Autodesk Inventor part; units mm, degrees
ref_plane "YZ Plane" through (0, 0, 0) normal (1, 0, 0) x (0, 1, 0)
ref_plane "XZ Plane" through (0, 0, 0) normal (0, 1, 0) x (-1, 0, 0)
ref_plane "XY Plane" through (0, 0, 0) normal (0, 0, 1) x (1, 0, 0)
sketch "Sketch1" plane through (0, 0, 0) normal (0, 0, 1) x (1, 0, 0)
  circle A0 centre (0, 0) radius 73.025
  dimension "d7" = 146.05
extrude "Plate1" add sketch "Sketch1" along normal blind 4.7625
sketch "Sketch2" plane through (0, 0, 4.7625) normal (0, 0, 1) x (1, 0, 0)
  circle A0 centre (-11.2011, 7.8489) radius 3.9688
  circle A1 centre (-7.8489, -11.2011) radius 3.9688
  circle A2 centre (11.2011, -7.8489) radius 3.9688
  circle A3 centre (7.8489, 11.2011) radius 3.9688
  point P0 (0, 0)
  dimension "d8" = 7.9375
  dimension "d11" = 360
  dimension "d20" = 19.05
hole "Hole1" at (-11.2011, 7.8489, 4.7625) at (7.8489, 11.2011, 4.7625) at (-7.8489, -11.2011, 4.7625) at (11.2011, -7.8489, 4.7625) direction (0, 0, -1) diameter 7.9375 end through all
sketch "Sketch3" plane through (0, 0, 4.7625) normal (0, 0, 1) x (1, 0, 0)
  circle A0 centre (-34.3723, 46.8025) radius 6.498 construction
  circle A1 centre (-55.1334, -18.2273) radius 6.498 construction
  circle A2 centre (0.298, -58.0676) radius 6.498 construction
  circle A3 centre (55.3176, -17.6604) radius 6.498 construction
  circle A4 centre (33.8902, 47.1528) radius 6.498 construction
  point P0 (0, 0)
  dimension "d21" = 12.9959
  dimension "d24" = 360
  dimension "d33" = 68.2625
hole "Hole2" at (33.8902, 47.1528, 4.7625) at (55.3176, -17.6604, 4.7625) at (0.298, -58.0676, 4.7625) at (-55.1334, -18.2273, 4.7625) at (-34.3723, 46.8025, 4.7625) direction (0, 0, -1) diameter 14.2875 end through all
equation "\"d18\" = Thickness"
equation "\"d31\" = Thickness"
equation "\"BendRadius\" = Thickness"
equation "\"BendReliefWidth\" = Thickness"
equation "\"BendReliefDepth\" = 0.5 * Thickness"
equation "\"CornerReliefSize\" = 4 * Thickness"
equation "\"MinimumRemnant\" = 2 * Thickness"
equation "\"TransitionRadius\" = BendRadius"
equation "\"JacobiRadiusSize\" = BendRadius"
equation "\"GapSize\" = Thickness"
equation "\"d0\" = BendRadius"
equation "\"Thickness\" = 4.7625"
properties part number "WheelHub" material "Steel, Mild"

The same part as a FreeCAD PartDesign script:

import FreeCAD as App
import Part
import Sketcher

V = App.Vector
Q = App.Units.Quantity

doc = App.newDocument("Part")
params = doc.addObject("Spreadsheet::Sheet", "Params")
for row, (alias, value) in enumerate([
    ("sketch1_diameter", "5.75 in"),
    ("pad1_length", "0.1875 in"),
    ("sketch2_diameter", "0.3125 in"),
    ("hole_diameter", "0.3125 in"),
    ("sketch3_diameter", "0.5625 in"),
    ("hole2_diameter", "0.5625 in"),
], start=1):
    params.set(f"A{row}", alias)
    params.set(f"B{row}", "=" + value)
    params.setAlias(f"B{row}", alias)

body = doc.addObject("PartDesign::Body", "Body")

# Sketch on XY plane
sketch1 = body.newObject("Sketcher::SketchObject", "Sketch")
sketch1.AttachmentSupport = (doc.getObject("XY_Plane"), [""])
sketch1.MapMode = "FlatFace"
sketch1.addGeometry(Part.Circle(V(0, 0, 0), V(0, 0, 1), 73), False)
sketch1.addConstraint([
    Sketcher.Constraint("Coincident", 0, 3, -1, 1),
    Sketcher.Constraint("Diameter", 0, Q("5.75 in")),
])
sketch1.setExpression("Constraints[1]", "Params.sketch1_diameter")
pad1 = body.newObject("PartDesign::Pad", "Pad")
pad1.Profile = sketch1
pad1.setExpression("Length", "Params.pad1_length")

# Sketch on XY plane
sketch2 = body.newObject("Sketcher::SketchObject", "Sketch001")
sketch2.AttachmentSupport = (doc.getObject("XY_Plane"), [""])
sketch2.MapMode = "FlatFace"
sketch2.AttachmentOffset = App.Placement(V(0, 0, 0.1875 * 25.4), App.Rotation())
sketch2.addGeometry([
    Part.Circle(V(-11.2, 7.8, 0), V(0, 0, 1), 4),
    Part.Circle(V(7.8, 11.2, 0), V(0, 0, 1), 4),
    Part.Circle(V(-7.8, -11.2, 0), V(0, 0, 1), 4),
    Part.Circle(V(11.2, -7.8, 0), V(0, 0, 1), 4),
], False)
sketch2.addConstraint([
    Sketcher.Constraint("Equal", 0, 1),
    Sketcher.Constraint("Equal", 1, 2),
    Sketcher.Constraint("Equal", 2, 3),
    Sketcher.Constraint("Symmetric", 1, 3, 2, 3, -1, 1),
    Sketcher.Constraint("Symmetric", 0, 3, 3, 3, -1, 1),
    Sketcher.Constraint("Diameter", 0, Q("0.3125 in")),
    Sketcher.Constraint("DistanceX", 0, 3, 1, 3, Q("0.75 in")),
    Sketcher.Constraint("DistanceY", 2, 3, 0, 3, Q("0.75 in")),
    Sketcher.Constraint("DistanceX", 0, 3, -1, 1, Q("0.441 in")),
    Sketcher.Constraint("DistanceY", -1, 1, 0, 3, Q("0.309 in")),
])
sketch2.setExpression("Constraints[5]", "Params.sketch2_diameter")
doc.recompute()
hole = body.newObject("PartDesign::Hole", "Hole")
hole.Profile = sketch2
hole.ThreadType = "None"
hole.setExpression("Diameter", "Params.hole_diameter")
hole.DepthType = "ThroughAll"

# Sketch on XY plane
sketch3 = body.newObject("Sketcher::SketchObject", "Sketch002")
sketch3.AttachmentSupport = (doc.getObject("XY_Plane"), [""])
sketch3.MapMode = "FlatFace"
sketch3.AttachmentOffset = App.Placement(V(0, 0, 0.1875 * 25.4), App.Rotation())
sketch3.addGeometry([
    Part.Circle(V(34, 47, 0), V(0, 0, 1), 7),  # 0
    Part.Circle(V(55, -18, 0), V(0, 0, 1), 7),  # 1
    Part.Circle(V(0, -58, 0), V(0, 0, 1), 7),  # 2
    Part.Circle(V(-55, -18, 0), V(0, 0, 1), 7),  # 3
    Part.Circle(V(-34, 47, 0), V(0, 0, 1), 7),  # 4
], False)
sketch3.addConstraint([
    Sketcher.Constraint("Equal", 0, 1),
    Sketcher.Constraint("Equal", 1, 2),
    Sketcher.Constraint("Equal", 2, 3),
    Sketcher.Constraint("Equal", 3, 4),
    Sketcher.Constraint("Diameter", 0, Q("0.5625 in")),
    Sketcher.Constraint("DistanceX", 4, 3, 0, 3, Q("2.6875 in")),
    Sketcher.Constraint("DistanceY", -1, 1, 0, 3, Q("1.8564 in")),
    Sketcher.Constraint("DistanceY", 1, 3, -1, 1, Q("0.6953 in")),
    Sketcher.Constraint("DistanceX", 3, 3, -1, 1, Q("2.1706 in")),
    Sketcher.Constraint("DistanceY", 3, 3, -1, 1, Q("0.7176 in")),
    Sketcher.Constraint("DistanceX", 0, 3, 1, 3, Q("0.8436 in")),
    Sketcher.Constraint("DistanceY", 4, 3, 0, 3, Q("0.0138 in")),
    Sketcher.Constraint("DistanceX", -1, 1, 0, 3, 33.8902),
    Sketcher.Constraint("DistanceX", -1, 1, 2, 3, 0.298),
    Sketcher.Constraint("DistanceY", 2, 3, -1, 1, 58.0676),
])
sketch3.setExpression("Constraints[4]", "Params.sketch3_diameter")
doc.recompute()
hole2 = body.newObject("PartDesign::Hole", "Hole001")
hole2.Profile = sketch3
hole2.ThreadType = "None"
hole2.setExpression("Diameter", "Params.hole2_diameter")
hole2.DepthType = "ThroughAll"

doc.recompute()
